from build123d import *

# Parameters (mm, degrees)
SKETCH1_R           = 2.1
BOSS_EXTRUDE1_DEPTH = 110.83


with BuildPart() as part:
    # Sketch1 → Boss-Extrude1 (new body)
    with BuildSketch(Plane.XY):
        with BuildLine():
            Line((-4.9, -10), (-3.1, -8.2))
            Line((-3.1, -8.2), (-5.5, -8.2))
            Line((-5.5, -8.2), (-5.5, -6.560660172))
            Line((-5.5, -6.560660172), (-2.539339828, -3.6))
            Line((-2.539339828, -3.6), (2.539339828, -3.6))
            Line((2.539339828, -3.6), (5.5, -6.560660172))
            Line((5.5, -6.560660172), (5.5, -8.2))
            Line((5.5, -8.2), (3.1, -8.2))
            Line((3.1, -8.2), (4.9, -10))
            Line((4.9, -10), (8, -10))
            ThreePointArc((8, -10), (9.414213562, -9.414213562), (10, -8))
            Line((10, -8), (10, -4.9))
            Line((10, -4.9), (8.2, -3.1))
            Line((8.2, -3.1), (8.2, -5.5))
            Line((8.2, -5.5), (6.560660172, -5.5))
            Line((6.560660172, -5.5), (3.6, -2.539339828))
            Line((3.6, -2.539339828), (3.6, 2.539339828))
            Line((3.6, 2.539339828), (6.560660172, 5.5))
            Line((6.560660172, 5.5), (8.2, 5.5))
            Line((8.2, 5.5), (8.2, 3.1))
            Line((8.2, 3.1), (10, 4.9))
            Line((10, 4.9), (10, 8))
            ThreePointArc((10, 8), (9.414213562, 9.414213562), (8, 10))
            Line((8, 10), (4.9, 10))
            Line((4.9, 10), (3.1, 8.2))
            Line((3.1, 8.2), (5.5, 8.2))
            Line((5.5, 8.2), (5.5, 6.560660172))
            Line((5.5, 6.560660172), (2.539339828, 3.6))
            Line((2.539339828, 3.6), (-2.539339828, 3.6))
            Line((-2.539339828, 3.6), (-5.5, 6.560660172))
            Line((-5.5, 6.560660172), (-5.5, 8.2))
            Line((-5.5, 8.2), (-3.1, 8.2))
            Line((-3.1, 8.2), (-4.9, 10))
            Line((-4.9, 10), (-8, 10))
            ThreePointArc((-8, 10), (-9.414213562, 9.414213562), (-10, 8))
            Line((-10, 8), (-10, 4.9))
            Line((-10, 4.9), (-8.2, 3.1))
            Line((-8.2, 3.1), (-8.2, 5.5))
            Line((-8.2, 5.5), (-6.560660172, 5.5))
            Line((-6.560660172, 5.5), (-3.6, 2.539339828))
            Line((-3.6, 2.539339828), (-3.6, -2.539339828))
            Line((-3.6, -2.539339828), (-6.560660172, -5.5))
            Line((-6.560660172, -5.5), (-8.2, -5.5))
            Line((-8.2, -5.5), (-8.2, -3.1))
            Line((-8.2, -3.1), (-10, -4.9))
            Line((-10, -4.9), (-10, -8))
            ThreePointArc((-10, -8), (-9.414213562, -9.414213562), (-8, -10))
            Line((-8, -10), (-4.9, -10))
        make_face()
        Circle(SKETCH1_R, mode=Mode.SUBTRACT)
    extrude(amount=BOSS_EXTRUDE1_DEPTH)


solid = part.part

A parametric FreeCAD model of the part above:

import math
import FreeCAD as App
import Part
import Sketcher

V = App.Vector

doc = App.newDocument("Part")
params = doc.addObject("Spreadsheet::Sheet", "Params")
for row, (alias, value) in enumerate([
    ("sketch1_radius", "2 mm"),
    ("sketch1_diameter", "4.2 mm"),
    ("sketch1_width", "2.4 mm"),
    ("sketch1_width2", "3.1 mm"),
    ("pad1_length", "110.83 mm"),
], start=1):
    params.set(f"A{row}", alias)
    params.set(f"B{row}", "=" + value)
    params.setAlias(f"B{row}", alias)

body = doc.addObject("PartDesign::Body", "Body")

# Sketch on XY plane
sketch1 = body.newObject("Sketcher::SketchObject", "Sketch")
sketch1.AttachmentSupport = (doc.getObject("XY_Plane"), [""])
sketch1.MapMode = "FlatFace"
sketch1.addGeometry([
    Part.LineSegment(V(-4.9, -10, 0), V(-3.1, -8.2, 0)),  # 0
    Part.LineSegment(V(-3.1, -8.2, 0), V(-5.5, -8.2, 0)),  # 1
    Part.LineSegment(V(-5.5, -8.2, 0), V(-5.5, -6.56066, 0)),  # 2
    Part.LineSegment(V(-5.5, -6.56066, 0), V(-2.53934, -3.6, 0)),  # 3
    Part.LineSegment(V(-2.53934, -3.6, 0), V(2.53934, -3.6, 0)),  # 4
    Part.LineSegment(V(2.53934, -3.6, 0), V(5.5, -6.56066, 0)),  # 5
    Part.LineSegment(V(5.5, -6.56066, 0), V(5.5, -8.2, 0)),  # 6
    Part.LineSegment(V(5.5, -8.2, 0), V(3.1, -8.2, 0)),  # 7
    Part.LineSegment(V(3.1, -8.2, 0), V(4.9, -10, 0)),  # 8
    Part.LineSegment(V(4.9, -10, 0), V(8, -10, 0)),  # 9
    Part.ArcOfCircle(Part.Circle(V(8, -8, 0), V(0, 0, 1), 2), math.radians(-90), math.radians(0)),  # 10
    Part.LineSegment(V(10, -8, 0), V(10, -4.9, 0)),  # 11
    Part.LineSegment(V(10, -4.9, 0), V(8.2, -3.1, 0)),  # 12
    Part.LineSegment(V(8.2, -3.1, 0), V(8.2, -5.5, 0)),  # 13
    Part.LineSegment(V(8.2, -5.5, 0), V(6.56066, -5.5, 0)),  # 14
    Part.LineSegment(V(6.56066, -5.5, 0), V(3.6, -2.53934, 0)),  # 15
    Part.LineSegment(V(3.6, -2.53934, 0), V(3.6, 2.53934, 0)),  # 16
    Part.LineSegment(V(3.6, 2.53934, 0), V(6.56066, 5.5, 0)),  # 17
    Part.LineSegment(V(6.56066, 5.5, 0), V(8.2, 5.5, 0)),  # 18
    Part.LineSegment(V(8.2, 5.5, 0), V(8.2, 3.1, 0)),  # 19
    Part.LineSegment(V(8.2, 3.1, 0), V(10, 4.9, 0)),  # 20
    Part.LineSegment(V(10, 4.9, 0), V(10, 8, 0)),  # 21
    Part.ArcOfCircle(Part.Circle(V(8, 8, 0), V(0, 0, 1), 2), math.radians(0), math.radians(90)),  # 22
    Part.LineSegment(V(8, 10, 0), V(4.9, 10, 0)),  # 23
    Part.LineSegment(V(4.9, 10, 0), V(3.1, 8.2, 0)),  # 24
    Part.LineSegment(V(3.1, 8.2, 0), V(5.5, 8.2, 0)),  # 25
    Part.LineSegment(V(5.5, 8.2, 0), V(5.5, 6.56066, 0)),  # 26
    Part.LineSegment(V(5.5, 6.56066, 0), V(2.53934, 3.6, 0)),  # 27
    Part.LineSegment(V(2.53934, 3.6, 0), V(-2.53934, 3.6, 0)),  # 28
    Part.LineSegment(V(-2.53934, 3.6, 0), V(-5.5, 6.56066, 0)),  # 29
    Part.LineSegment(V(-5.5, 6.56066, 0), V(-5.5, 8.2, 0)),  # 30
    Part.LineSegment(V(-5.5, 8.2, 0), V(-3.1, 8.2, 0)),  # 31
    Part.LineSegment(V(-3.1, 8.2, 0), V(-4.9, 10, 0)),  # 32
    Part.LineSegment(V(-4.9, 10, 0), V(-8, 10, 0)),  # 33
    Part.ArcOfCircle(Part.Circle(V(-8, 8, 0), V(0, 0, 1), 2), math.radians(90), math.radians(180)),  # 34
    Part.LineSegment(V(-10, 8, 0), V(-10, 4.9, 0)),  # 35
    Part.LineSegment(V(-10, 4.9, 0), V(-8.2, 3.1, 0)),  # 36
    Part.LineSegment(V(-8.2, 3.1, 0), V(-8.2, 5.5, 0)),  # 37
    Part.LineSegment(V(-8.2, 5.5, 0), V(-6.56066, 5.5, 0)),  # 38
    Part.LineSegment(V(-6.56066, 5.5, 0), V(-3.6, 2.53934, 0)),  # 39
    Part.LineSegment(V(-3.6, 2.53934, 0), V(-3.6, -2.53934, 0)),  # 40
    Part.LineSegment(V(-3.6, -2.53934, 0), V(-6.56066, -5.5, 0)),  # 41
    Part.LineSegment(V(-6.56066, -5.5, 0), V(-8.2, -5.5, 0)),  # 42
    Part.LineSegment(V(-8.2, -5.5, 0), V(-8.2, -3.1, 0)),  # 43
    Part.LineSegment(V(-8.2, -3.1, 0), V(-10, -4.9, 0)),  # 44
    Part.LineSegment(V(-10, -4.9, 0), V(-10, -8, 0)),  # 45
    Part.ArcOfCircle(Part.Circle(V(-8, -8, 0), V(0, 0, 1), 2), math.radians(-180), math.radians(-90)),  # 46
    Part.LineSegment(V(-8, -10, 0), V(-4.9, -10, 0)),  # 47
    Part.Circle(V(0, 0, 0), V(0, 0, 1), 2.1),  # 48
], False)
sketch1.addConstraint([
    Sketcher.Constraint("Coincident", 0, 2, 1, 1),
    Sketcher.Constraint("Coincident", 1, 2, 2, 1),
    Sketcher.Constraint("Coincident", 2, 2, 3, 1),
    Sketcher.Constraint("Coincident", 3, 2, 4, 1),
    Sketcher.Constraint("Coincident", 4, 2, 5, 1),
    Sketcher.Constraint("Coincident", 5, 2, 6, 1),
    Sketcher.Constraint("Coincident", 6, 2, 7, 1),
    Sketcher.Constraint("Coincident", 7, 2, 8, 1),
    Sketcher.Constraint("Coincident", 8, 2, 9, 1),
    Sketcher.Constraint("Tangent", 9, 2, 10, 1),
    Sketcher.Constraint("Tangent", 10, 2, 11, 1),
    Sketcher.Constraint("Coincident", 11, 2, 12, 1),
    Sketcher.Constraint("Coincident", 12, 2, 13, 1),
    Sketcher.Constraint("Coincident", 13, 2, 14, 1),
    Sketcher.Constraint("Coincident", 14, 2, 15, 1),
    Sketcher.Constraint("Coincident", 15, 2, 16, 1),
    Sketcher.Constraint("Coincident", 16, 2, 17, 1),
    Sketcher.Constraint("Coincident", 17, 2, 18, 1),
    Sketcher.Constraint("Coincident", 18, 2, 19, 1),
    Sketcher.Constraint("Coincident", 19, 2, 20, 1),
    Sketcher.Constraint("Coincident", 20, 2, 21, 1),
    Sketcher.Constraint("Tangent", 21, 2, 22, 1),
    Sketcher.Constraint("Tangent", 22, 2, 23, 1),
    Sketcher.Constraint("Coincident", 23, 2, 24, 1),
    Sketcher.Constraint("Coincident", 24, 2, 25, 1),
    Sketcher.Constraint("Coincident", 25, 2, 26, 1),
    Sketcher.Constraint("Coincident", 26, 2, 27, 1),
    Sketcher.Constraint("Coincident", 27, 2, 28, 1),
    Sketcher.Constraint("Coincident", 28, 2, 29, 1),
    Sketcher.Constraint("Coincident", 29, 2, 30, 1),
    Sketcher.Constraint("Coincident", 30, 2, 31, 1),
    Sketcher.Constraint("Coincident", 31, 2, 32, 1),
    Sketcher.Constraint("Coincident", 32, 2, 33, 1),
    Sketcher.Constraint("Tangent", 33, 2, 34, 1),
    Sketcher.Constraint("Tangent", 34, 2, 35, 1),
    Sketcher.Constraint("Coincident", 35, 2, 36, 1),
    Sketcher.Constraint("Coincident", 36, 2, 37, 1),
    Sketcher.Constraint("Coincident", 37, 2, 38, 1),
    Sketcher.Constraint("Coincident", 38, 2, 39, 1),
    Sketcher.Constraint("Coincident", 39, 2, 40, 1),
    Sketcher.Constraint("Coincident", 40, 2, 41, 1),
    Sketcher.Constraint("Coincident", 41, 2, 42, 1),
    Sketcher.Constraint("Coincident", 42, 2, 43, 1),
    Sketcher.Constraint("Coincident", 43, 2, 44, 1),
    Sketcher.Constraint("Coincident", 44, 2, 45, 1),
    Sketcher.Constraint("Tangent", 45, 2, 46, 1),
    Sketcher.Constraint("Tangent", 46, 2, 47, 1),
    Sketcher.Constraint("Coincident", 47, 2, 0, 1),
    Sketcher.Constraint("Horizontal", 1),
    Sketcher.Constraint("Vertical", 2),
    Sketcher.Constraint("Horizontal", 4),
    Sketcher.Constraint("Vertical", 6),
    Sketcher.Constraint("Horizontal", 7),
    Sketcher.Constraint("Horizontal", 9),
    Sketcher.Constraint("Vertical", 11),
    Sketcher.Constraint("Vertical", 13),
    Sketcher.Constraint("Horizontal", 14),
    Sketcher.Constraint("Vertical", 16),
    Sketcher.Constraint("Horizontal", 18),
    Sketcher.Constraint("Vertical", 19),
    Sketcher.Constraint("Vertical", 21),
    Sketcher.Constraint("Horizontal", 23),
    Sketcher.Constraint("Horizontal", 25),
    Sketcher.Constraint("Vertical", 26),
    Sketcher.Constraint("Horizontal", 28),
    Sketcher.Constraint("Vertical", 30),
    Sketcher.Constraint("Horizontal", 31),
    Sketcher.Constraint("Horizontal", 33),
    Sketcher.Constraint("Vertical", 35),
    Sketcher.Constraint("Vertical", 37),
    Sketcher.Constraint("Horizontal", 38),
    Sketcher.Constraint("Vertical", 40),
    Sketcher.Constraint("Horizontal", 42),
    Sketcher.Constraint("Vertical", 43),
    Sketcher.Constraint("Vertical", 45),
    Sketcher.Constraint("Horizontal", 47),
    Sketcher.Constraint("Coincident", 48, 3, -1, 1),
    Sketcher.Constraint("Equal", 10, 22),
    Sketcher.Constraint("Equal", 22, 34),
    Sketcher.Constraint("Equal", 34, 46),
    Sketcher.Constraint("Symmetric", 10, 3, 34, 3, -1, 1),
    Sketcher.Constraint("Symmetric", 22, 3, 46, 3, -1, 1),
    Sketcher.Constraint("Symmetric", 0, 2, 24, 2, -1, 1),
    Sketcher.Constraint("Symmetric", 2, 2, 26, 2, -1, 1),
    Sketcher.Constraint("Symmetric", 3, 2, 27, 2, -1, 1),
    Sketcher.Constraint("Symmetric", 5, 2, 29, 2, -1, 1),
    Sketcher.Constraint("Symmetric", 7, 2, 31, 2, -1, 1),
    Sketcher.Constraint("Symmetric", 12, 2, 36, 2, -1, 1),
    Sketcher.Constraint("Symmetric", 14, 2, 38, 2, -1, 1),
    Sketcher.Constraint("Symmetric", 15, 2, 39, 2, -1, 1),
    Sketcher.Constraint("Symmetric", 17, 2, 41, 2, -1, 1),
    Sketcher.Constraint("Symmetric", 19, 2, 43, 2, -1, 1),
    Sketcher.Constraint("Symmetric", 22, 3, 34, 3, -2),
    Sketcher.Constraint("Symmetric", 2, 2, 5, 2, -2),
    Sketcher.Constraint("Symmetric", 0, 2, 7, 2, -2),
    Sketcher.Constraint("Symmetric", 19, 2, 36, 2, -2),
    Sketcher.Constraint("Symmetric", 17, 2, 38, 2, -2),
    Sketcher.Constraint("Parallel", 0, 3),
    Sketcher.Constraint("Perpendicular", 3, 5),
    Sketcher.Constraint("Parallel", 5, 8),
    Sketcher.Constraint("Parallel", 8, 12),
    Sketcher.Constraint("Parallel", 12, 15),
    Sketcher.Constraint("Perpendicular", 15, 17),
    Sketcher.Constraint("Parallel", 17, 20),
    Sketcher.Constraint("Parallel", 20, 24),
    Sketcher.Constraint("Perpendicular", 27, 29),
    Sketcher.Constraint("Parallel", 29, 32),
    Sketcher.Constraint("Parallel", 32, 36),
    Sketcher.Constraint("Perpendicular", 39, 41),
    Sketcher.Constraint("Parallel", 41, 44),
    Sketcher.Constraint("Horizontal", 20, 2, 35, 2),
    Sketcher.Constraint("Equal", 42, 2),
    Sketcher.Constraint("Equal", 47, 11),
    Sketcher.Constraint("Equal", 31, 13),
    Sketcher.Constraint("Equal", 28, 16),
    Sketcher.Constraint("Equal", 8, 12),
    Sketcher.Constraint("Equal", 5, 15),
    Sketcher.Constraint("Radius", 10, 2.0),
    Sketcher.Constraint("Diameter", 48, 4.2),
    Sketcher.Constraint("DistanceX", 1, 2, 1, 1, 2.4),
    Sketcher.Constraint("DistanceX", 9, 1, 9, 2, 3.1),
    Sketcher.Constraint("DistanceX", -1, 1, 10, 3, 8.0),
    Sketcher.Constraint("DistanceX", 0, 2, -1, 1, 3.1),
    Sketcher.Constraint("DistanceY", 3, 2, -1, 1, 3.6),
    Sketcher.Constraint("DistanceX", 4, 1, 4, 2, 5.07868),
])
sketch1.setExpression("Constraints[117]", "Params.sketch1_radius")
sketch1.setExpression("Constraints[118]", "Params.sketch1_diameter")
sketch1.setExpression("Constraints[119]", "Params.sketch1_width")
sketch1.setExpression("Constraints[120]", "Params.sketch1_width2")
pad1 = body.newObject("PartDesign::Pad", "Pad")
pad1.Profile = sketch1
pad1.setExpression("Length", "Params.pad1_length")

doc.recompute()
